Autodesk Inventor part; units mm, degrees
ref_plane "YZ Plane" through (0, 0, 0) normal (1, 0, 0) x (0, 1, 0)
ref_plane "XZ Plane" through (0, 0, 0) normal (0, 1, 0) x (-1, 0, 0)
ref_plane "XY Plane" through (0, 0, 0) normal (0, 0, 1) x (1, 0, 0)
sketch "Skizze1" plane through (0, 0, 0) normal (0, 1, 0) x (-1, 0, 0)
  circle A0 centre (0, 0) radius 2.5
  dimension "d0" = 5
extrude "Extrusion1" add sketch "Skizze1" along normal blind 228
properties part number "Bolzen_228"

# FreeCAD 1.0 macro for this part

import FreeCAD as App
import Part
import Sketcher
from FreeCAD import Vector
Q = App.Units.Quantity

doc = App.newDocument("Part")
body = doc.addObject("PartDesign::Body", "Body")

# Sketch on XZ plane
sketch1 = body.newObject("Sketcher::SketchObject", "Sketch")
sketch1.AttachmentSupport = (doc.getObject("XZ_Plane"), [""])
sketch1.MapMode = "FlatFace"
sketch1.addGeometry(Part.Circle(Vector(0, 0, 0), Vector(0, 0, 1), 2.5), False)
sketch1.addConstraint(Sketcher.Constraint("Coincident", 0, 3, -1, 1))
sketch1.addConstraint(Sketcher.Constraint("Diameter", 0, Q("5 mm")))
pad1 = body.newObject("PartDesign::Pad", "Pad")
pad1.Profile = sketch1
pad1.Length = 228
pad1.Reversed = True

doc.recompute()
